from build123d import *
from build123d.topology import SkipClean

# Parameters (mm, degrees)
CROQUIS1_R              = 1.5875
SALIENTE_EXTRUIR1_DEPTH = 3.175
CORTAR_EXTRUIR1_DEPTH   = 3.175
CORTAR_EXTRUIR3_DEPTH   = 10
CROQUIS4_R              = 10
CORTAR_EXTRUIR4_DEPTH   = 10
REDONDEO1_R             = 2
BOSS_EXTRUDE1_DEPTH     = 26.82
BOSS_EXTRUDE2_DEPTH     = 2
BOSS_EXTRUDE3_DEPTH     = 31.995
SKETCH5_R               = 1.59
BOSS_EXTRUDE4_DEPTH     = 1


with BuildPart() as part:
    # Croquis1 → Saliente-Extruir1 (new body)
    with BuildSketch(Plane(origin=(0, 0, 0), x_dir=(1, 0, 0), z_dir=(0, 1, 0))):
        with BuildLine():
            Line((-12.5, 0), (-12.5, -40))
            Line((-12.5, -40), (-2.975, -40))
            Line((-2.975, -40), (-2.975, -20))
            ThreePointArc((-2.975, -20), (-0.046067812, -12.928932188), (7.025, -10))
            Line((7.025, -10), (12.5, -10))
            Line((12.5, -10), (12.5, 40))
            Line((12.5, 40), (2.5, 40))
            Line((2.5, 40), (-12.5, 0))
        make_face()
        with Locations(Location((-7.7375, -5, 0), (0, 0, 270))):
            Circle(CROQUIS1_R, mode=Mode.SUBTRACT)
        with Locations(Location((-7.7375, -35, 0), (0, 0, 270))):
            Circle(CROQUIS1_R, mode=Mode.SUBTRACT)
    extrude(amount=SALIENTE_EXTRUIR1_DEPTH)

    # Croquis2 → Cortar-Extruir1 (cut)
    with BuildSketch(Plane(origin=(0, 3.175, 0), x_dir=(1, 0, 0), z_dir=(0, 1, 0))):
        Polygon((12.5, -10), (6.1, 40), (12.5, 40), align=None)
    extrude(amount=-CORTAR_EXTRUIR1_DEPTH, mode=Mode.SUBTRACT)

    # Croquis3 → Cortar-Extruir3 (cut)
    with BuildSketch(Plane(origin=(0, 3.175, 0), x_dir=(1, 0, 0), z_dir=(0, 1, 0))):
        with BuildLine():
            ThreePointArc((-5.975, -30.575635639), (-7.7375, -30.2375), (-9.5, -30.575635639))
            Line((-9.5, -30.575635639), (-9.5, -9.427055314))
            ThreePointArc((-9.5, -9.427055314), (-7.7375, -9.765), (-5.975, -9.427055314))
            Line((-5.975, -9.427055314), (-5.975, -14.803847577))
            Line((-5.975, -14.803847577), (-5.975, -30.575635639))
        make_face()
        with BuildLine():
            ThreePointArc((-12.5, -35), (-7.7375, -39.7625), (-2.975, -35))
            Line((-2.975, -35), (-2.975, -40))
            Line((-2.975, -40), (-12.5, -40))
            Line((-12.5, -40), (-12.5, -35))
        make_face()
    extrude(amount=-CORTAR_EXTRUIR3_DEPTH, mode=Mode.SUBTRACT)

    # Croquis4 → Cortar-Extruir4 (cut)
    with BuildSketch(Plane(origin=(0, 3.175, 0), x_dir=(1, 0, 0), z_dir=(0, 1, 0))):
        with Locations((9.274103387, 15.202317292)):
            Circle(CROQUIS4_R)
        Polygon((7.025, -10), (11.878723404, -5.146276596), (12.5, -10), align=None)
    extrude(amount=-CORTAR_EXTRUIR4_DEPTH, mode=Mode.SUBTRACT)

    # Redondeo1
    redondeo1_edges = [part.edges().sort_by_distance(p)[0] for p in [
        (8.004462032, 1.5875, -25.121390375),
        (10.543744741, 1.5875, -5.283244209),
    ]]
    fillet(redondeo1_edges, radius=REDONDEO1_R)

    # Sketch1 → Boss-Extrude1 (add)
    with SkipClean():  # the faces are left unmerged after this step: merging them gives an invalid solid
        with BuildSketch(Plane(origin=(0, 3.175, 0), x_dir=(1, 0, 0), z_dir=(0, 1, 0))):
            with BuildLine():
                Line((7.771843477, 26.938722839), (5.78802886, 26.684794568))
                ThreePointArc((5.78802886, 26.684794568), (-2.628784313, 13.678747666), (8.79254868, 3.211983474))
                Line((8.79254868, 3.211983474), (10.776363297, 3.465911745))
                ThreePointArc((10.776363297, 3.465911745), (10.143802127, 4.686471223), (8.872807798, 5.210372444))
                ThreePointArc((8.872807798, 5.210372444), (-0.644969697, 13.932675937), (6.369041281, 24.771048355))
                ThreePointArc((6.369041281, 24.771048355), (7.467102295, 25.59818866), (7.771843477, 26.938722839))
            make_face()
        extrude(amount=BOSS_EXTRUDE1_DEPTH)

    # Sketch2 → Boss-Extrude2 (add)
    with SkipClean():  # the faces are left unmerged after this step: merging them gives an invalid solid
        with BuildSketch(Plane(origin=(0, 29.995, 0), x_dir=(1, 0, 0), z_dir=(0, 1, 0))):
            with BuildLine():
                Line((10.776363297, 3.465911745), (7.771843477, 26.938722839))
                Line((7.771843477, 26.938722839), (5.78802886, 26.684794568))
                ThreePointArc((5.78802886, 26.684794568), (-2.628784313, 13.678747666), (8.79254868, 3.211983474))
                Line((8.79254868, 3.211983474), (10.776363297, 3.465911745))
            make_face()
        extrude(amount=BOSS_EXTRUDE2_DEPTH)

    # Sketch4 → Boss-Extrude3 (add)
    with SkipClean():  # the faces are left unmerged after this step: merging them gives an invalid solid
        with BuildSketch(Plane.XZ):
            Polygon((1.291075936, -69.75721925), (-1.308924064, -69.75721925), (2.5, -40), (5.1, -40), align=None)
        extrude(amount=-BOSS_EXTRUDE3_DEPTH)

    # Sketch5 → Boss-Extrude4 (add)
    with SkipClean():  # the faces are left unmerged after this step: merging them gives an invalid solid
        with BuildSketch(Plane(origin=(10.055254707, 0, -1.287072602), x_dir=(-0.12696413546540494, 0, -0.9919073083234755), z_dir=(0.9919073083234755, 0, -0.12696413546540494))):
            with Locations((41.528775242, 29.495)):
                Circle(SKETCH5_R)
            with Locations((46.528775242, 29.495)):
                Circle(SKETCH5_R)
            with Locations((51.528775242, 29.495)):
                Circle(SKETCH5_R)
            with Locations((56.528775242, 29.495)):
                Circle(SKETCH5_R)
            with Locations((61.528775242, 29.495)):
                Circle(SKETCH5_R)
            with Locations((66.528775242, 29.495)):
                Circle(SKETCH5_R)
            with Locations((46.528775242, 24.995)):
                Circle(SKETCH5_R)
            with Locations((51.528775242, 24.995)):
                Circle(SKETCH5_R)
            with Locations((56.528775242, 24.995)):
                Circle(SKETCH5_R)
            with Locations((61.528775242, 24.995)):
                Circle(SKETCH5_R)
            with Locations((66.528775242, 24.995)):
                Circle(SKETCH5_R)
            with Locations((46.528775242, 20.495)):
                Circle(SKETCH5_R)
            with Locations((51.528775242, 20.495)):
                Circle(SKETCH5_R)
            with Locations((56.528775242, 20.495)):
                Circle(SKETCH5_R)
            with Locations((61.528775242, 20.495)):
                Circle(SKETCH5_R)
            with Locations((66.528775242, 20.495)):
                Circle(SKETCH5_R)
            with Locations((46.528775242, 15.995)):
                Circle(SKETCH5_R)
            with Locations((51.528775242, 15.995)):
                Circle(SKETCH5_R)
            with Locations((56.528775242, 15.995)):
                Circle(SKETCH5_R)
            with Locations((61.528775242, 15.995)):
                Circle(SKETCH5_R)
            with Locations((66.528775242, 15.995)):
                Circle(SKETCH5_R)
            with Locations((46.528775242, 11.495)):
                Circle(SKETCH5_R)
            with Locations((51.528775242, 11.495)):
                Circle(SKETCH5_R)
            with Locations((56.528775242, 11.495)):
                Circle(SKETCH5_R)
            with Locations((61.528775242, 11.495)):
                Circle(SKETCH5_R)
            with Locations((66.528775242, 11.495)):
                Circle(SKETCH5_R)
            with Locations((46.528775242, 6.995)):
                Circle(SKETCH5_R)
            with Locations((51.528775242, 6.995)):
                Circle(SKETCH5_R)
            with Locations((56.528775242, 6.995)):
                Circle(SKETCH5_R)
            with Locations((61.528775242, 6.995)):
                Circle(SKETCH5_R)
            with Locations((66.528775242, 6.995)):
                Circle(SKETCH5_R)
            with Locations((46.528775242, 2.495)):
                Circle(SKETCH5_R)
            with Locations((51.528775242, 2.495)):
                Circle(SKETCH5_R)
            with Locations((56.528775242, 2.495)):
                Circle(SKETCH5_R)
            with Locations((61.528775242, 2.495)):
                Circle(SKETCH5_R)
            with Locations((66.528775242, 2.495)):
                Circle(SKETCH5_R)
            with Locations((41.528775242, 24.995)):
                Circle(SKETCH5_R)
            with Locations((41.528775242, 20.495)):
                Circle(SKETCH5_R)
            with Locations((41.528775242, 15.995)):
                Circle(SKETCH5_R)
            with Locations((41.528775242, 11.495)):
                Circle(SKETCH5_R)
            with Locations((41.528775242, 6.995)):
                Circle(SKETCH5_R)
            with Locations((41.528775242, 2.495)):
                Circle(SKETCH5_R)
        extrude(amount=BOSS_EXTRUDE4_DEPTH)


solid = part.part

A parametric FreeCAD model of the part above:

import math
import FreeCAD as App
import Part
import Sketcher
Q = App.Units.Quantity


def edges_at(feature, points):
    """Names of the edges that pass closest to the given points."""
    edges = feature.Shape.Edges
    near = lambda p: min(range(len(edges)), key=lambda i: edges[i].distToShape(Part.Vertex(*p))[0])
    return sorted({f"Edge{near(p) + 1}" for p in points})

doc = App.newDocument("Part")
body = doc.addObject("PartDesign::Body", "Body")

# Sketch on XZ plane
sketch1 = body.newObject("Sketcher::SketchObject", "Sketch")
sketch1.AttachmentSupport = (doc.getObject("XZ_Plane"), [""])
sketch1.MapMode = "FlatFace"
sketch1.addGeometry(Part.LineSegment(App.Vector(-12.5, 0, 0), App.Vector(-12.5, 40, 0)), False)
sketch1.addGeometry(Part.LineSegment(App.Vector(-12.5, 40, 0), App.Vector(-3, 40, 0)), False)
sketch1.addGeometry(Part.LineSegment(App.Vector(-3, 40, 0), App.Vector(-3, 20, 0)), False)
sketch1.addGeometry(Part.ArcOfCircle(Part.Circle(App.Vector(7, 20, 0), App.Vector(0, 0, 1), 10), math.radians(180), math.radians(270)), False)
sketch1.addGeometry(Part.LineSegment(App.Vector(7, 10, 0), App.Vector(12.5, 10, 0)), False)
sketch1.addGeometry(Part.LineSegment(App.Vector(12.5, 10, 0), App.Vector(12.5, -40, 0)), False)
sketch1.addGeometry(Part.LineSegment(App.Vector(12.5, -40, 0), App.Vector(2.5, -40, 0)), False)
sketch1.addGeometry(Part.LineSegment(App.Vector(2.5, -40, 0), App.Vector(-12.5, 0, 0)), False)
sketch1.addGeometry(Part.Circle(App.Vector(-7.7, 35, 0), App.Vector(0, 0, 1), 1.6), False)
sketch1.addGeometry(Part.Circle(App.Vector(-7.7, 5, 0), App.Vector(0, 0, 1), 1.6), False)
sketch1.addConstraint(Sketcher.Constraint("Coincident", 0, 2, 1, 1))
sketch1.addConstraint(Sketcher.Constraint("Coincident", 1, 2, 2, 1))
sketch1.addConstraint(Sketcher.Constraint("Tangent", 2, 2, 3, 1))
sketch1.addConstraint(Sketcher.Constraint("Tangent", 3, 2, 4, 1))
sketch1.addConstraint(Sketcher.Constraint("Coincident", 4, 2, 5, 1))
sketch1.addConstraint(Sketcher.Constraint("Coincident", 5, 2, 6, 1))
sketch1.addConstraint(Sketcher.Constraint("Coincident", 6, 2, 7, 1))
sketch1.addConstraint(Sketcher.Constraint("Coincident", 7, 2, 0, 1))
sketch1.addConstraint(Sketcher.Constraint("Vertical", 0))
sketch1.addConstraint(Sketcher.Constraint("Horizontal", 1))
sketch1.addConstraint(Sketcher.Constraint("Vertical", 2))
sketch1.addConstraint(Sketcher.Constraint("Horizontal", 4))
sketch1.addConstraint(Sketcher.Constraint("Vertical", 5))
sketch1.addConstraint(Sketcher.Constraint("Horizontal", 6))
sketch1.addConstraint(Sketcher.Constraint("Equal", 8, 9))
sketch1.addConstraint(Sketcher.Constraint("Symmetric", 0, 2, 5, 2, -1, 1))
sketch1.addConstraint(Sketcher.Constraint("PointOnObject", 7, 2, -1))
sketch1.addConstraint(Sketcher.Constraint("Vertical", 8, 3, 9, 3))
sketch1.addConstraint(Sketcher.Constraint("Radius", 3, Q("10 mm")))
sketch1.addConstraint(Sketcher.Constraint("DistanceX", 6, 2, 6, 1, Q("10 mm")))
sketch1.addConstraint(Sketcher.Constraint("DistanceY", 0, 1, 0, 2, Q("40 mm")))
sketch1.addConstraint(Sketcher.Constraint("DistanceY", 2, 2, 2, 1, Q("20 mm")))
sketch1.addConstraint(Sketcher.Constraint("Diameter", 8, Q("3.175 mm")))
sketch1.addConstraint(Sketcher.Constraint("DistanceY", -1, 1, 8, 3, Q("35 mm")))
sketch1.addConstraint(Sketcher.Constraint("DistanceY", -1, 1, 9, 3, Q("5 mm")))
sketch1.addConstraint(Sketcher.Constraint("DistanceX", 7, 2, 4, 2, Q("25 mm")))
sketch1.addConstraint(Sketcher.Constraint("DistanceX", 1, 1, 1, 2, Q("9.525 mm")))
sketch1.addConstraint(Sketcher.Constraint("DistanceX", 8, 3, -1, 1, Q("7.7375 mm")))
pad1 = body.newObject("PartDesign::Pad", "Pad")
pad1.Profile = sketch1
pad1.Length = 3.175
pad1.Reversed = True

# Sketch on XZ plane
sketch2 = body.newObject("Sketcher::SketchObject", "Sketch001")
sketch2.AttachmentSupport = (doc.getObject("XZ_Plane"), [""])
sketch2.MapMode = "FlatFace"
sketch2.AttachmentOffset = App.Placement(App.Vector(0, 0, -3.175), App.Rotation())
sketch2.addGeometry(Part.LineSegment(App.Vector(6, -40, 0), App.Vector(12, 10, 0)), False)
sketch2.addGeometry(Part.LineSegment(App.Vector(12, 10, 0), App.Vector(12, -40, 0)), False)
sketch2.addGeometry(Part.LineSegment(App.Vector(12, -40, 0), App.Vector(6, -40, 0)), False)
sketch2.addConstraint(Sketcher.Constraint("Coincident", 0, 2, 1, 1))
sketch2.addConstraint(Sketcher.Constraint("Coincident", 1, 2, 2, 1))
sketch2.addConstraint(Sketcher.Constraint("Coincident", 2, 2, 0, 1))
sketch2.addConstraint(Sketcher.Constraint("Vertical", 1))
sketch2.addConstraint(Sketcher.Constraint("Horizontal", 2))
sketch2.addConstraint(Sketcher.Constraint("DistanceY", 1, 2, 1, 1, Q("50 mm")))
sketch2.addConstraint(Sketcher.Constraint("DistanceX", 2, 2, 2, 1, Q("6.4 mm")))
sketch2.addConstraint(Sketcher.Constraint("DistanceY", -1, 1, 0, 2, Q("10 mm")))
sketch2.addConstraint(Sketcher.Constraint("DistanceX", -1, 1, 0, 2, Q("12.5 mm")))
pocket1 = body.newObject("PartDesign::Pocket", "Pocket")
pocket1.Profile = sketch2
pocket1.Length = 3.175
pocket1.Reversed = True

# Sketch on XZ plane
sketch3 = body.newObject("Sketcher::SketchObject", "Sketch002")
sketch3.AttachmentSupport = (doc.getObject("XZ_Plane"), [""])
sketch3.MapMode = "FlatFace"
sketch3.AttachmentOffset = App.Placement(App.Vector(0, 0, -3.175), App.Rotation())
sketch3.addGeometry(Part.ArcOfCircle(Part.Circle(App.Vector(-7.7, 35, 0), App.Vector(0, 0, 1), 4.8), math.radians(-112), math.radians(-68)), False)
sketch3.addGeometry(Part.LineSegment(App.Vector(-6, 30.6, 0), App.Vector(-6, 9.4, 0)), False)
sketch3.addGeometry(Part.ArcOfCircle(Part.Circle(App.Vector(-7.7, 5, 0), App.Vector(0, 0, 1), 4.8), math.radians(68), math.radians(112)), False)
sketch3.addGeometry(Part.LineSegment(App.Vector(-9.5, 9.4, 0), App.Vector(-9.5, 30.6, 0)), False)
sketch3.addGeometry(Part.ArcOfCircle(Part.Circle(App.Vector(-7.7, 35, 0), App.Vector(0, 0, 1), 4.8), math.radians(0), math.radians(180)), False)
sketch3.addGeometry(Part.LineSegment(App.Vector(-12.5, 35, 0), App.Vector(-12.5, 40, 0)), False)
sketch3.addGeometry(Part.LineSegment(App.Vector(-12.5, 40, 0), App.Vector(-3, 40, 0)), False)
sketch3.addGeometry(Part.LineSegment(App.Vector(-3, 40, 0), App.Vector(-3, 35, 0)), False)
sketch3.addConstraint(Sketcher.Constraint("Coincident", 0, 2, 1, 1))
sketch3.addConstraint(Sketcher.Constraint("Coincident", 1, 2, 2, 1))
sketch3.addConstraint(Sketcher.Constraint("Coincident", 2, 2, 3, 1))
sketch3.addConstraint(Sketcher.Constraint("Coincident", 3, 2, 0, 1))
sketch3.addConstraint(Sketcher.Constraint("Tangent", 4, 2, 5, 1))
sketch3.addConstraint(Sketcher.Constraint("Coincident", 5, 2, 6, 1))
sketch3.addConstraint(Sketcher.Constraint("Coincident", 6, 2, 7, 1))
sketch3.addConstraint(Sketcher.Constraint("Tangent", 7, 2, 4, 1))
sketch3.addConstraint(Sketcher.Constraint("Vertical", 1))
sketch3.addConstraint(Sketcher.Constraint("Vertical", 3))
sketch3.addConstraint(Sketcher.Constraint("Vertical", 5))
sketch3.addConstraint(Sketcher.Constraint("Horizontal", 6))
sketch3.addConstraint(Sketcher.Constraint("Vertical", 7))
sketch3.addConstraint(Sketcher.Constraint("Coincident", 4, 3, 0, 3))
sketch3.addConstraint(Sketcher.Constraint("Equal", 0, 4))
sketch3.addConstraint(Sketcher.Constraint("Horizontal", 1, 2, 2, 2))
sketch3.addConstraint(Sketcher.Constraint("Horizontal", 0, 2, 3, 2))
sketch3.addConstraint(Sketcher.Constraint("DistanceY", 5, 1, 5, 2, Q("5 mm")))
sketch3.addConstraint(Sketcher.Constraint("DistanceY", -1, 1, 0, 3, Q("35 mm")))
sketch3.addConstraint(Sketcher.Constraint("DistanceY", -1, 1, 2, 3, Q("5 mm")))
sketch3.addConstraint(Sketcher.Constraint("Radius", 2, Q("4.765 mm")))
sketch3.addConstraint(Sketcher.Constraint("DistanceX", 4, 2, 3, 2, Q("3 mm")))
sketch3.addConstraint(Sketcher.Constraint("DistanceX", 2, 2, -1, 1, Q("9.5 mm")))
sketch3.addConstraint(Sketcher.Constraint("Radius", 0, Q("4.7625 mm")))
pocket2 = body.newObject("PartDesign::Pocket", "Pocket001")
pocket2.Profile = sketch3
pocket2.Length = 10
pocket2.Reversed = True

# Sketch on XZ plane
sketch4 = body.newObject("Sketcher::SketchObject", "Sketch003")
sketch4.AttachmentSupport = (doc.getObject("XZ_Plane"), [""])
sketch4.MapMode = "FlatFace"
sketch4.AttachmentOffset = App.Placement(App.Vector(0, 0, -3.175), App.Rotation())
sketch4.addGeometry(Part.Circle(App.Vector(9.3, -15.2, 0), App.Vector(0, 0, 1), 10), False)
sketch4.addGeometry(Part.LineSegment(App.Vector(11.9, 5.1, 0), App.Vector(7, 10, 0)), False)
sketch4.addGeometry(Part.LineSegment(App.Vector(7, 10, 0), App.Vector(12.5, 10, 0)), False)
sketch4.addGeometry(Part.LineSegment(App.Vector(12.5, 10, 0), App.Vector(11.9, 5.1, 0)), False)
sketch4.addConstraint(Sketcher.Constraint("Coincident", 1, 2, 2, 1))
sketch4.addConstraint(Sketcher.Constraint("Coincident", 2, 2, 3, 1))
sketch4.addConstraint(Sketcher.Constraint("Coincident", 3, 2, 1, 1))
sketch4.addConstraint(Sketcher.Constraint("Horizontal", 2))
sketch4.addConstraint(Sketcher.Constraint("Diameter", 0, Q("20 mm")))
sketch4.addConstraint(Sketcher.Constraint("Angle", 1, Q("135 deg")))
sketch4.addConstraint(Sketcher.Constraint("DistanceY", -1, 1, 1, 2, Q("10 mm")))
sketch4.addConstraint(Sketcher.Constraint("DistanceX", -1, 1, 2, 2, Q("12.5 mm")))
sketch4.addConstraint(Sketcher.Constraint("DistanceX", 2, 1, 2, 2, Q("5.475 mm")))
sketch4.addConstraint(Sketcher.Constraint("Distance", 1, Q("6.864201 mm")))
sketch4.addConstraint(Sketcher.Constraint("DistanceX", 0, 3, 3, 2, Q("2.60462 mm")))
sketch4.addConstraint(Sketcher.Constraint("DistanceY", 0, 3, -1, 1, Q("15.202317 mm")))
pocket3 = body.newObject("PartDesign::Pocket", "Pocket002")
pocket3.Profile = sketch4
pocket3.Length = 10
pocket3.Reversed = True
doc.recompute()

fillet = body.newObject("PartDesign::Fillet", "Fillet")
fillet.Base = (pocket3, edges_at(pocket3, [(8.004, 1.587, -25.121), (10.544, 1.587, -5.283)]))
fillet.Radius = 2

# Sketch on XZ plane
sketch5 = body.newObject("Sketcher::SketchObject", "Sketch004")
sketch5.AttachmentSupport = (doc.getObject("XZ_Plane"), [""])
sketch5.MapMode = "FlatFace"
sketch5.AttachmentOffset = App.Placement(App.Vector(0, 0, -3.175), App.Rotation())
sketch5.addGeometry(Part.LineSegment(App.Vector(7.8, -26.9, 0), App.Vector(5.8, -26.7, 0)), False)
sketch5.addGeometry(Part.ArcOfCircle(Part.Circle(App.Vector(9.3, -15.2, 0), App.Vector(0, 0, 1), 12), math.radians(92), math.radians(253)), False)
sketch5.addGeometry(Part.LineSegment(App.Vector(8.8, -3.2, 0), App.Vector(10.8, -3.5, 0)), False)
sketch5.addGeometry(Part.ArcOfCircle(Part.Circle(App.Vector(8.8, -3.2, 0), App.Vector(0, 0, 1), 2), math.radians(-88), math.radians(-7)), False)
sketch5.addGeometry(Part.ArcOfCircle(Part.Circle(App.Vector(9.3, -15.2, 0), App.Vector(0, 0, 1), 10), math.radians(92), math.radians(253)), False)
sketch5.addGeometry(Part.ArcOfCircle(Part.Circle(App.Vector(5.8, -26.7, 0), App.Vector(0, 0, 1), 2), math.radians(-7), math.radians(73)), False)
sketch5.addConstraint(Sketcher.Constraint("Coincident", 0, 2, 1, 2))
sketch5.addConstraint(Sketcher.Constraint("Coincident", 1, 1, 2, 1))
sketch5.addConstraint(Sketcher.Constraint("Coincident", 2, 2, 3, 2))
sketch5.addConstraint(Sketcher.Constraint("Tangent", 3, 1, 4, 1))
sketch5.addConstraint(Sketcher.Constraint("Tangent", 4, 2, 5, 2))
sketch5.addConstraint(Sketcher.Constraint("Coincident", 5, 1, 0, 1))
sketch5.addConstraint(Sketcher.Constraint("Coincident", 4, 3, 1, 3))
sketch5.addConstraint(Sketcher.Constraint("Coincident", 0, 2, 5, 3))
sketch5.addConstraint(Sketcher.Constraint("Coincident", 1, 1, 3, 3))
sketch5.addConstraint(Sketcher.Constraint("Parallel", 0, 2))
sketch5.addConstraint(Sketcher.Constraint("Radius", 1, Q("12 mm")))
sketch5.addConstraint(Sketcher.Constraint("Radius", 3, Q("2 mm")))
sketch5.addConstraint(Sketcher.Constraint("DistanceX", -1, 1, 3, 3, Q("8.792549 mm")))
sketch5.addConstraint(Sketcher.Constraint("DistanceX", -1, 1, 5, 3, Q("5.788029 mm")))
sketch5.addConstraint(Sketcher.Constraint("DistanceY", 2, 2, -1, 1, Q("3.465912 mm")))
sketch5.addConstraint(Sketcher.Constraint("DistanceX", -1, 1, 4, 2, Q("6.369041 mm")))
sketch5.addConstraint(Sketcher.Constraint("DistanceY", 4, 2, -1, 1, Q("24.771048 mm")))
pad2 = body.newObject("PartDesign::Pad", "Pad001")
pad2.Profile = sketch5
pad2.Length = 26.82
pad2.Reversed = True

# Sketch on XZ plane
sketch6 = body.newObject("Sketcher::SketchObject", "Sketch005")
sketch6.AttachmentSupport = (doc.getObject("XZ_Plane"), [""])
sketch6.MapMode = "FlatFace"
sketch6.AttachmentOffset = App.Placement(App.Vector(0, 0, -29.995), App.Rotation())
sketch6.addGeometry(Part.LineSegment(App.Vector(10.8, -3.5, 0), App.Vector(7.8, -26.9, 0)), False)
sketch6.addGeometry(Part.LineSegment(App.Vector(7.8, -26.9, 0), App.Vector(5.8, -26.7, 0)), False)
sketch6.addGeometry(Part.ArcOfCircle(Part.Circle(App.Vector(9.3, -15.2, 0), App.Vector(0, 0, 1), 12), math.radians(92), math.radians(253)), False)
sketch6.addGeometry(Part.LineSegment(App.Vector(8.8, -3.2, 0), App.Vector(10.8, -3.5, 0)), False)
sketch6.addConstraint(Sketcher.Constraint("Coincident", 0, 2, 1, 1))
sketch6.addConstraint(Sketcher.Constraint("Coincident", 1, 2, 2, 2))
sketch6.addConstraint(Sketcher.Constraint("Coincident", 2, 1, 3, 1))
sketch6.addConstraint(Sketcher.Constraint("Coincident", 3, 2, 0, 1))
sketch6.addConstraint(Sketcher.Constraint("Perpendicular", 0, 1))
sketch6.addConstraint(Sketcher.Constraint("Parallel", 1, 3))
sketch6.addConstraint(Sketcher.Constraint("Equal", 1, 3))
sketch6.addConstraint(Sketcher.Constraint("Radius", 2, Q("12 mm")))
sketch6.addConstraint(Sketcher.Constraint("Distance", 1, Q("2 mm")))
sketch6.addConstraint(Sketcher.Constraint("Distance", 0, Q("23.664319 mm")))
sketch6.addConstraint(Sketcher.Constraint("DistanceX", -1, 1, 1, 2, Q("5.788029 mm")))
sketch6.addConstraint(Sketcher.Constraint("DistanceX", -1, 1, 2, 1, Q("8.792549 mm")))
sketch6.addConstraint(Sketcher.Constraint("DistanceY", 3, 2, -1, 1, Q("3.465912 mm")))
pad3 = body.newObject("PartDesign::Pad", "Pad002")
pad3.Profile = sketch6
pad3.Length = 2
pad3.Reversed = True

# Sketch on XZ plane
sketch7 = body.newObject("Sketcher::SketchObject", "Sketch006")
sketch7.AttachmentSupport = (doc.getObject("XZ_Plane"), [""])
sketch7.MapMode = "FlatFace"
sketch7.addGeometry(Part.LineSegment(App.Vector(-1.3, -69.8, 0), App.Vector(1.3, -69.8, 0)), False)
sketch7.addGeometry(Part.LineSegment(App.Vector(1.3, -69.8, 0), App.Vector(5.1, -40, 0)), False)
sketch7.addGeometry(Part.LineSegment(App.Vector(5.1, -40, 0), App.Vector(2.5, -40, 0)), False)
sketch7.addGeometry(Part.LineSegment(App.Vector(2.5, -40, 0), App.Vector(-1.3, -69.8, 0)), False)
sketch7.addConstraint(Sketcher.Constraint("Coincident", 0, 2, 1, 1))
sketch7.addConstraint(Sketcher.Constraint("Coincident", 1, 2, 2, 1))
sketch7.addConstraint(Sketcher.Constraint("Coincident", 2, 2, 3, 1))
sketch7.addConstraint(Sketcher.Constraint("Coincident", 3, 2, 0, 1))
sketch7.addConstraint(Sketcher.Constraint("Horizontal", 0))
sketch7.addConstraint(Sketcher.Constraint("Horizontal", 2))
sketch7.addConstraint(Sketcher.Constraint("Parallel", 1, 3))
sketch7.addConstraint(Sketcher.Constraint("Distance", 1, Q("30 mm")))
sketch7.addConstraint(Sketcher.Constraint("DistanceX", 0, 1, 0, 2, Q("2.6 mm")))
sketch7.addConstraint(Sketcher.Constraint("DistanceY", 1, 2, -1, 1, Q("40 mm")))
sketch7.addConstraint(Sketcher.Constraint("DistanceX", -1, 1, 1, 2, Q("5.1 mm")))
sketch7.addConstraint(Sketcher.Constraint("DistanceY", 0, 2, -1, 1, Q("69.757219 mm")))
pad4 = body.newObject("PartDesign::Pad", "Pad003")
pad4.Profile = sketch7
pad4.Length = 31.995
pad4.Reversed = True

# Sketch on an angled plane
sketch8 = body.newObject("Sketcher::SketchObject", "Sketch007")
sketch8.Placement = App.Placement(App.Vector(10.055255, 0, -1.287073), App.Rotation(App.Vector(-0.126964135, 0, -0.991907308), App.Vector(0, 0.999999999, 0), App.Vector(0.991907308, 0, -0.126964135), "ZXY"))
sketch8.addGeometry(Part.Circle(App.Vector(41.5, 29.5, 0), App.Vector(0, 0, 1), 1.6), False)
sketch8.addGeometry(Part.Circle(App.Vector(46.5, 29.5, 0), App.Vector(0, 0, 1), 1.6), False)
sketch8.addGeometry(Part.Circle(App.Vector(51.5, 29.5, 0), App.Vector(0, 0, 1), 1.6), False)
sketch8.addGeometry(Part.Circle(App.Vector(56.5, 29.5, 0), App.Vector(0, 0, 1), 1.6), False)
sketch8.addGeometry(Part.Circle(App.Vector(61.5, 29.5, 0), App.Vector(0, 0, 1), 1.6), False)
sketch8.addGeometry(Part.Circle(App.Vector(66.5, 29.5, 0), App.Vector(0, 0, 1), 1.6), False)
sketch8.addGeometry(Part.Circle(App.Vector(46.5, 25, 0), App.Vector(0, 0, 1), 1.6), False)
sketch8.addGeometry(Part.Circle(App.Vector(51.5, 25, 0), App.Vector(0, 0, 1), 1.6), False)
sketch8.addGeometry(Part.Circle(App.Vector(56.5, 25, 0), App.Vector(0, 0, 1), 1.6), False)
sketch8.addGeometry(Part.Circle(App.Vector(61.5, 25, 0), App.Vector(0, 0, 1), 1.6), False)
sketch8.addGeometry(Part.Circle(App.Vector(66.5, 25, 0), App.Vector(0, 0, 1), 1.6), False)
sketch8.addGeometry(Part.Circle(App.Vector(46.5, 20.5, 0), App.Vector(0, 0, 1), 1.6), False)
sketch8.addGeometry(Part.Circle(App.Vector(51.5, 20.5, 0), App.Vector(0, 0, 1), 1.6), False)
sketch8.addGeometry(Part.Circle(App.Vector(56.5, 20.5, 0), App.Vector(0, 0, 1), 1.6), False)
sketch8.addGeometry(Part.Circle(App.Vector(61.5, 20.5, 0), App.Vector(0, 0, 1), 1.6), False)
sketch8.addGeometry(Part.Circle(App.Vector(66.5, 20.5, 0), App.Vector(0, 0, 1), 1.6), False)
sketch8.addGeometry(Part.Circle(App.Vector(46.5, 16, 0), App.Vector(0, 0, 1), 1.6), False)
sketch8.addGeometry(Part.Circle(App.Vector(51.5, 16, 0), App.Vector(0, 0, 1), 1.6), False)
sketch8.addGeometry(Part.Circle(App.Vector(56.5, 16, 0), App.Vector(0, 0, 1), 1.6), False)
sketch8.addGeometry(Part.Circle(App.Vector(61.5, 16, 0), App.Vector(0, 0, 1), 1.6), False)
sketch8.addGeometry(Part.Circle(App.Vector(66.5, 16, 0), App.Vector(0, 0, 1), 1.6), False)
sketch8.addGeometry(Part.Circle(App.Vector(46.5, 11.5, 0), App.Vector(0, 0, 1), 1.6), False)
sketch8.addGeometry(Part.Circle(App.Vector(51.5, 11.5, 0), App.Vector(0, 0, 1), 1.6), False)
sketch8.addGeometry(Part.Circle(App.Vector(56.5, 11.5, 0), App.Vector(0, 0, 1), 1.6), False)
sketch8.addGeometry(Part.Circle(App.Vector(61.5, 11.5, 0), App.Vector(0, 0, 1), 1.6), False)
sketch8.addGeometry(Part.Circle(App.Vector(66.5, 11.5, 0), App.Vector(0, 0, 1), 1.6), False)
sketch8.addGeometry(Part.Circle(App.Vector(46.5, 7, 0), App.Vector(0, 0, 1), 1.6), False)
sketch8.addGeometry(Part.Circle(App.Vector(51.5, 7, 0), App.Vector(0, 0, 1), 1.6), False)
sketch8.addGeometry(Part.Circle(App.Vector(56.5, 7, 0), App.Vector(0, 0, 1), 1.6), False)
sketch8.addGeometry(Part.Circle(App.Vector(61.5, 7, 0), App.Vector(0, 0, 1), 1.6), False)
sketch8.addGeometry(Part.Circle(App.Vector(66.5, 7, 0), App.Vector(0, 0, 1), 1.6), False)
sketch8.addGeometry(Part.Circle(App.Vector(46.5, 2.5, 0), App.Vector(0, 0, 1), 1.6), False)
sketch8.addGeometry(Part.Circle(App.Vector(51.5, 2.5, 0), App.Vector(0, 0, 1), 1.6), False)
sketch8.addGeometry(Part.Circle(App.Vector(56.5, 2.5, 0), App.Vector(0, 0, 1), 1.6), False)
sketch8.addGeometry(Part.Circle(App.Vector(61.5, 2.5, 0), App.Vector(0, 0, 1), 1.6), False)
sketch8.addGeometry(Part.Circle(App.Vector(66.5, 2.5, 0), App.Vector(0, 0, 1), 1.6), False)
sketch8.addGeometry(Part.Circle(App.Vector(41.5, 25, 0), App.Vector(0, 0, 1), 1.6), False)
sketch8.addGeometry(Part.Circle(App.Vector(41.5, 20.5, 0), App.Vector(0, 0, 1), 1.6), False)
sketch8.addGeometry(Part.Circle(App.Vector(41.5, 16, 0), App.Vector(0, 0, 1), 1.6), False)
sketch8.addGeometry(Part.Circle(App.Vector(41.5, 11.5, 0), App.Vector(0, 0, 1), 1.6), False)
sketch8.addGeometry(Part.Circle(App.Vector(41.5, 7, 0), App.Vector(0, 0, 1), 1.6), False)
sketch8.addGeometry(Part.Circle(App.Vector(41.5, 2.5, 0), App.Vector(0, 0, 1), 1.6), False)
sketch8.addConstraint(Sketcher.Constraint("Equal", 0, 1))
sketch8.addConstraint(Sketcher.Constraint("Equal", 1, 2))
sketch8.addConstraint(Sketcher.Constraint("Equal", 2, 3))
sketch8.addConstraint(Sketcher.Constraint("Equal", 3, 4))
sketch8.addConstraint(Sketcher.Constraint("Equal", 4, 5))
sketch8.addConstraint(Sketcher.Constraint("Equal", 5, 6))
sketch8.addConstraint(Sketcher.Constraint("Equal", 6, 7))
sketch8.addConstraint(Sketcher.Constraint("Equal", 7, 8))
sketch8.addConstraint(Sketcher.Constraint("Equal", 8, 9))
sketch8.addConstraint(Sketcher.Constraint("Equal", 9, 10))
sketch8.addConstraint(Sketcher.Constraint("Equal", 10, 11))
sketch8.addConstraint(Sketcher.Constraint("Equal", 11, 12))
sketch8.addConstraint(Sketcher.Constraint("Equal", 12, 13))
sketch8.addConstraint(Sketcher.Constraint("Equal", 13, 14))
sketch8.addConstraint(Sketcher.Constraint("Equal", 14, 15))
sketch8.addConstraint(Sketcher.Constraint("Equal", 15, 16))
sketch8.addConstraint(Sketcher.Constraint("Equal", 16, 17))
sketch8.addConstraint(Sketcher.Constraint("Equal", 17, 18))
sketch8.addConstraint(Sketcher.Constraint("Equal", 18, 19))
sketch8.addConstraint(Sketcher.Constraint("Equal", 19, 20))
sketch8.addConstraint(Sketcher.Constraint("Equal", 20, 21))
sketch8.addConstraint(Sketcher.Constraint("Equal", 21, 22))
sketch8.addConstraint(Sketcher.Constraint("Equal", 22, 23))
sketch8.addConstraint(Sketcher.Constraint("Equal", 23, 24))
sketch8.addConstraint(Sketcher.Constraint("Equal", 24, 25))
sketch8.addConstraint(Sketcher.Constraint("Equal", 25, 26))
sketch8.addConstraint(Sketcher.Constraint("Equal", 26, 27))
sketch8.addConstraint(Sketcher.Constraint("Equal", 27, 28))
sketch8.addConstraint(Sketcher.Constraint("Equal", 28, 29))
sketch8.addConstraint(Sketcher.Constraint("Equal", 29, 30))
sketch8.addConstraint(Sketcher.Constraint("Equal", 30, 31))
sketch8.addConstraint(Sketcher.Constraint("Equal", 31, 32))
sketch8.addConstraint(Sketcher.Constraint("Equal", 32, 33))
sketch8.addConstraint(Sketcher.Constraint("Equal", 33, 34))
sketch8.addConstraint(Sketcher.Constraint("Equal", 34, 35))
sketch8.addConstraint(Sketcher.Constraint("Equal", 35, 36))
sketch8.addConstraint(Sketcher.Constraint("Equal", 36, 37))
sketch8.addConstraint(Sketcher.Constraint("Equal", 37, 38))
sketch8.addConstraint(Sketcher.Constraint("Equal", 38, 39))
sketch8.addConstraint(Sketcher.Constraint("Equal", 39, 40))
sketch8.addConstraint(Sketcher.Constraint("Equal", 40, 41))
sketch8.addConstraint(Sketcher.Constraint("Horizontal", 0, 3, 1, 3))
sketch8.addConstraint(Sketcher.Constraint("Horizontal", 1, 3, 2, 3))
sketch8.addConstraint(Sketcher.Constraint("Horizontal", 2, 3, 3, 3))
sketch8.addConstraint(Sketcher.Constraint("Horizontal", 3, 3, 4, 3))
sketch8.addConstraint(Sketcher.Constraint("Horizontal", 4, 3, 5, 3))
sketch8.addConstraint(Sketcher.Constraint("Horizontal", 6, 3, 7, 3))
sketch8.addConstraint(Sketcher.Constraint("Horizontal", 7, 3, 8, 3))
sketch8.addConstraint(Sketcher.Constraint("Horizontal", 8, 3, 9, 3))
sketch8.addConstraint(Sketcher.Constraint("Horizontal", 9, 3, 10, 3))
sketch8.addConstraint(Sketcher.Constraint("Horizontal", 11, 3, 12, 3))
sketch8.addConstraint(Sketcher.Constraint("Horizontal", 12, 3, 13, 3))
sketch8.addConstraint(Sketcher.Constraint("Horizontal", 13, 3, 14, 3))
sketch8.addConstraint(Sketcher.Constraint("Horizontal", 14, 3, 15, 3))
sketch8.addConstraint(Sketcher.Constraint("Horizontal", 16, 3, 17, 3))
sketch8.addConstraint(Sketcher.Constraint("Horizontal", 17, 3, 18, 3))
sketch8.addConstraint(Sketcher.Constraint("Horizontal", 18, 3, 19, 3))
sketch8.addConstraint(Sketcher.Constraint("Horizontal", 19, 3, 20, 3))
sketch8.addConstraint(Sketcher.Constraint("Horizontal", 21, 3, 22, 3))
sketch8.addConstraint(Sketcher.Constraint("Horizontal", 22, 3, 23, 3))
sketch8.addConstraint(Sketcher.Constraint("Horizontal", 23, 3, 24, 3))
sketch8.addConstraint(Sketcher.Constraint("Horizontal", 24, 3, 25, 3))
sketch8.addConstraint(Sketcher.Constraint("Horizontal", 26, 3, 27, 3))
sketch8.addConstraint(Sketcher.Constraint("Horizontal", 27, 3, 28, 3))
sketch8.addConstraint(Sketcher.Constraint("Horizontal", 28, 3, 29, 3))
sketch8.addConstraint(Sketcher.Constraint("Horizontal", 29, 3, 30, 3))
sketch8.addConstraint(Sketcher.Constraint("Horizontal", 31, 3, 32, 3))
sketch8.addConstraint(Sketcher.Constraint("Horizontal", 32, 3, 33, 3))
sketch8.addConstraint(Sketcher.Constraint("Horizontal", 33, 3, 34, 3))
sketch8.addConstraint(Sketcher.Constraint("Horizontal", 34, 3, 35, 3))
sketch8.addConstraint(Sketcher.Constraint("Horizontal", 10, 3, 36, 3))
sketch8.addConstraint(Sketcher.Constraint("Horizontal", 15, 3, 37, 3))
sketch8.addConstraint(Sketcher.Constraint("Horizontal", 20, 3, 38, 3))
sketch8.addConstraint(Sketcher.Constraint("Horizontal", 25, 3, 39, 3))
sketch8.addConstraint(Sketcher.Constraint("Horizontal", 30, 3, 40, 3))
sketch8.addConstraint(Sketcher.Constraint("Horizontal", 35, 3, 41, 3))
sketch8.addConstraint(Sketcher.Constraint("Vertical", 1, 3, 6, 3))
sketch8.addConstraint(Sketcher.Constraint("Vertical", 2, 3, 7, 3))
sketch8.addConstraint(Sketcher.Constraint("Vertical", 3, 3, 8, 3))
sketch8.addConstraint(Sketcher.Constraint("Vertical", 4, 3, 9, 3))
sketch8.addConstraint(Sketcher.Constraint("Vertical", 5, 3, 10, 3))
sketch8.addConstraint(Sketcher.Constraint("Vertical", 6, 3, 11, 3))
sketch8.addConstraint(Sketcher.Constraint("Vertical", 7, 3, 12, 3))
sketch8.addConstraint(Sketcher.Constraint("Vertical", 8, 3, 13, 3))
sketch8.addConstraint(Sketcher.Constraint("Vertical", 9, 3, 14, 3))
sketch8.addConstraint(Sketcher.Constraint("Vertical", 10, 3, 15, 3))
sketch8.addConstraint(Sketcher.Constraint("Vertical", 11, 3, 16, 3))
sketch8.addConstraint(Sketcher.Constraint("Vertical", 12, 3, 17, 3))
sketch8.addConstraint(Sketcher.Constraint("Vertical", 13, 3, 18, 3))
sketch8.addConstraint(Sketcher.Constraint("Vertical", 14, 3, 19, 3))
sketch8.addConstraint(Sketcher.Constraint("Vertical", 15, 3, 20, 3))
sketch8.addConstraint(Sketcher.Constraint("Vertical", 16, 3, 21, 3))
sketch8.addConstraint(Sketcher.Constraint("Vertical", 17, 3, 22, 3))
sketch8.addConstraint(Sketcher.Constraint("Vertical", 18, 3, 23, 3))
sketch8.addConstraint(Sketcher.Constraint("Vertical", 19, 3, 24, 3))
sketch8.addConstraint(Sketcher.Constraint("Vertical", 20, 3, 25, 3))
sketch8.addConstraint(Sketcher.Constraint("Vertical", 21, 3, 26, 3))
sketch8.addConstraint(Sketcher.Constraint("Vertical", 22, 3, 27, 3))
sketch8.addConstraint(Sketcher.Constraint("Vertical", 23, 3, 28, 3))
sketch8.addConstraint(Sketcher.Constraint("Vertical", 24, 3, 29, 3))
sketch8.addConstraint(Sketcher.Constraint("Vertical", 25, 3, 30, 3))
sketch8.addConstraint(Sketcher.Constraint("Vertical", 26, 3, 31, 3))
sketch8.addConstraint(Sketcher.Constraint("Vertical", 27, 3, 32, 3))
sketch8.addConstraint(Sketcher.Constraint("Vertical", 28, 3, 33, 3))
sketch8.addConstraint(Sketcher.Constraint("Vertical", 29, 3, 34, 3))
sketch8.addConstraint(Sketcher.Constraint("Vertical", 30, 3, 35, 3))
sketch8.addConstraint(Sketcher.Constraint("Vertical", 0, 3, 36, 3))
sketch8.addConstraint(Sketcher.Constraint("Vertical", 36, 3, 37, 3))
sketch8.addConstraint(Sketcher.Constraint("Vertical", 37, 3, 38, 3))
sketch8.addConstraint(Sketcher.Constraint("Vertical", 38, 3, 39, 3))
sketch8.addConstraint(Sketcher.Constraint("Vertical", 39, 3, 40, 3))
sketch8.addConstraint(Sketcher.Constraint("Vertical", 40, 3, 41, 3))
sketch8.addConstraint(Sketcher.Constraint("Diameter", 0, Q("3.18 mm")))
sketch8.addConstraint(Sketcher.Constraint("DistanceX", 0, 3, 1, 3, Q("5 mm")))
sketch8.addConstraint(Sketcher.Constraint("DistanceX", 1, 3, 2, 3, Q("5 mm")))
sketch8.addConstraint(Sketcher.Constraint("DistanceX", 2, 3, 3, 3, Q("5 mm")))
sketch8.addConstraint(Sketcher.Constraint("DistanceX", 3, 3, 4, 3, Q("5 mm")))
sketch8.addConstraint(Sketcher.Constraint("DistanceX", 4, 3, 5, 3, Q("5 mm")))
sketch8.addConstraint(Sketcher.Constraint("DistanceY", 11, 3, 1, 3, Q("9 mm")))
sketch8.addConstraint(Sketcher.Constraint("DistanceY", 16, 3, 6, 3, Q("9 mm")))
sketch8.addConstraint(Sketcher.Constraint("DistanceY", 21, 3, 11, 3, Q("9 mm")))
sketch8.addConstraint(Sketcher.Constraint("DistanceY", 26, 3, 16, 3, Q("9 mm")))
sketch8.addConstraint(Sketcher.Constraint("DistanceY", 31, 3, 21, 3, Q("9 mm")))
sketch8.addConstraint(Sketcher.Constraint("DistanceY", 6, 3, 1, 3, Q("4.5 mm")))
sketch8.addConstraint(Sketcher.Constraint("DistanceY", -1, 1, 0, 3, Q("29.495 mm")))
sketch8.addConstraint(Sketcher.Constraint("DistanceX", -1, 1, 0, 3, Q("41.528775 mm")))
pad5 = body.newObject("PartDesign::Pad", "Pad004")
pad5.Profile = sketch8
pad5.Length = 1

doc.recompute()
